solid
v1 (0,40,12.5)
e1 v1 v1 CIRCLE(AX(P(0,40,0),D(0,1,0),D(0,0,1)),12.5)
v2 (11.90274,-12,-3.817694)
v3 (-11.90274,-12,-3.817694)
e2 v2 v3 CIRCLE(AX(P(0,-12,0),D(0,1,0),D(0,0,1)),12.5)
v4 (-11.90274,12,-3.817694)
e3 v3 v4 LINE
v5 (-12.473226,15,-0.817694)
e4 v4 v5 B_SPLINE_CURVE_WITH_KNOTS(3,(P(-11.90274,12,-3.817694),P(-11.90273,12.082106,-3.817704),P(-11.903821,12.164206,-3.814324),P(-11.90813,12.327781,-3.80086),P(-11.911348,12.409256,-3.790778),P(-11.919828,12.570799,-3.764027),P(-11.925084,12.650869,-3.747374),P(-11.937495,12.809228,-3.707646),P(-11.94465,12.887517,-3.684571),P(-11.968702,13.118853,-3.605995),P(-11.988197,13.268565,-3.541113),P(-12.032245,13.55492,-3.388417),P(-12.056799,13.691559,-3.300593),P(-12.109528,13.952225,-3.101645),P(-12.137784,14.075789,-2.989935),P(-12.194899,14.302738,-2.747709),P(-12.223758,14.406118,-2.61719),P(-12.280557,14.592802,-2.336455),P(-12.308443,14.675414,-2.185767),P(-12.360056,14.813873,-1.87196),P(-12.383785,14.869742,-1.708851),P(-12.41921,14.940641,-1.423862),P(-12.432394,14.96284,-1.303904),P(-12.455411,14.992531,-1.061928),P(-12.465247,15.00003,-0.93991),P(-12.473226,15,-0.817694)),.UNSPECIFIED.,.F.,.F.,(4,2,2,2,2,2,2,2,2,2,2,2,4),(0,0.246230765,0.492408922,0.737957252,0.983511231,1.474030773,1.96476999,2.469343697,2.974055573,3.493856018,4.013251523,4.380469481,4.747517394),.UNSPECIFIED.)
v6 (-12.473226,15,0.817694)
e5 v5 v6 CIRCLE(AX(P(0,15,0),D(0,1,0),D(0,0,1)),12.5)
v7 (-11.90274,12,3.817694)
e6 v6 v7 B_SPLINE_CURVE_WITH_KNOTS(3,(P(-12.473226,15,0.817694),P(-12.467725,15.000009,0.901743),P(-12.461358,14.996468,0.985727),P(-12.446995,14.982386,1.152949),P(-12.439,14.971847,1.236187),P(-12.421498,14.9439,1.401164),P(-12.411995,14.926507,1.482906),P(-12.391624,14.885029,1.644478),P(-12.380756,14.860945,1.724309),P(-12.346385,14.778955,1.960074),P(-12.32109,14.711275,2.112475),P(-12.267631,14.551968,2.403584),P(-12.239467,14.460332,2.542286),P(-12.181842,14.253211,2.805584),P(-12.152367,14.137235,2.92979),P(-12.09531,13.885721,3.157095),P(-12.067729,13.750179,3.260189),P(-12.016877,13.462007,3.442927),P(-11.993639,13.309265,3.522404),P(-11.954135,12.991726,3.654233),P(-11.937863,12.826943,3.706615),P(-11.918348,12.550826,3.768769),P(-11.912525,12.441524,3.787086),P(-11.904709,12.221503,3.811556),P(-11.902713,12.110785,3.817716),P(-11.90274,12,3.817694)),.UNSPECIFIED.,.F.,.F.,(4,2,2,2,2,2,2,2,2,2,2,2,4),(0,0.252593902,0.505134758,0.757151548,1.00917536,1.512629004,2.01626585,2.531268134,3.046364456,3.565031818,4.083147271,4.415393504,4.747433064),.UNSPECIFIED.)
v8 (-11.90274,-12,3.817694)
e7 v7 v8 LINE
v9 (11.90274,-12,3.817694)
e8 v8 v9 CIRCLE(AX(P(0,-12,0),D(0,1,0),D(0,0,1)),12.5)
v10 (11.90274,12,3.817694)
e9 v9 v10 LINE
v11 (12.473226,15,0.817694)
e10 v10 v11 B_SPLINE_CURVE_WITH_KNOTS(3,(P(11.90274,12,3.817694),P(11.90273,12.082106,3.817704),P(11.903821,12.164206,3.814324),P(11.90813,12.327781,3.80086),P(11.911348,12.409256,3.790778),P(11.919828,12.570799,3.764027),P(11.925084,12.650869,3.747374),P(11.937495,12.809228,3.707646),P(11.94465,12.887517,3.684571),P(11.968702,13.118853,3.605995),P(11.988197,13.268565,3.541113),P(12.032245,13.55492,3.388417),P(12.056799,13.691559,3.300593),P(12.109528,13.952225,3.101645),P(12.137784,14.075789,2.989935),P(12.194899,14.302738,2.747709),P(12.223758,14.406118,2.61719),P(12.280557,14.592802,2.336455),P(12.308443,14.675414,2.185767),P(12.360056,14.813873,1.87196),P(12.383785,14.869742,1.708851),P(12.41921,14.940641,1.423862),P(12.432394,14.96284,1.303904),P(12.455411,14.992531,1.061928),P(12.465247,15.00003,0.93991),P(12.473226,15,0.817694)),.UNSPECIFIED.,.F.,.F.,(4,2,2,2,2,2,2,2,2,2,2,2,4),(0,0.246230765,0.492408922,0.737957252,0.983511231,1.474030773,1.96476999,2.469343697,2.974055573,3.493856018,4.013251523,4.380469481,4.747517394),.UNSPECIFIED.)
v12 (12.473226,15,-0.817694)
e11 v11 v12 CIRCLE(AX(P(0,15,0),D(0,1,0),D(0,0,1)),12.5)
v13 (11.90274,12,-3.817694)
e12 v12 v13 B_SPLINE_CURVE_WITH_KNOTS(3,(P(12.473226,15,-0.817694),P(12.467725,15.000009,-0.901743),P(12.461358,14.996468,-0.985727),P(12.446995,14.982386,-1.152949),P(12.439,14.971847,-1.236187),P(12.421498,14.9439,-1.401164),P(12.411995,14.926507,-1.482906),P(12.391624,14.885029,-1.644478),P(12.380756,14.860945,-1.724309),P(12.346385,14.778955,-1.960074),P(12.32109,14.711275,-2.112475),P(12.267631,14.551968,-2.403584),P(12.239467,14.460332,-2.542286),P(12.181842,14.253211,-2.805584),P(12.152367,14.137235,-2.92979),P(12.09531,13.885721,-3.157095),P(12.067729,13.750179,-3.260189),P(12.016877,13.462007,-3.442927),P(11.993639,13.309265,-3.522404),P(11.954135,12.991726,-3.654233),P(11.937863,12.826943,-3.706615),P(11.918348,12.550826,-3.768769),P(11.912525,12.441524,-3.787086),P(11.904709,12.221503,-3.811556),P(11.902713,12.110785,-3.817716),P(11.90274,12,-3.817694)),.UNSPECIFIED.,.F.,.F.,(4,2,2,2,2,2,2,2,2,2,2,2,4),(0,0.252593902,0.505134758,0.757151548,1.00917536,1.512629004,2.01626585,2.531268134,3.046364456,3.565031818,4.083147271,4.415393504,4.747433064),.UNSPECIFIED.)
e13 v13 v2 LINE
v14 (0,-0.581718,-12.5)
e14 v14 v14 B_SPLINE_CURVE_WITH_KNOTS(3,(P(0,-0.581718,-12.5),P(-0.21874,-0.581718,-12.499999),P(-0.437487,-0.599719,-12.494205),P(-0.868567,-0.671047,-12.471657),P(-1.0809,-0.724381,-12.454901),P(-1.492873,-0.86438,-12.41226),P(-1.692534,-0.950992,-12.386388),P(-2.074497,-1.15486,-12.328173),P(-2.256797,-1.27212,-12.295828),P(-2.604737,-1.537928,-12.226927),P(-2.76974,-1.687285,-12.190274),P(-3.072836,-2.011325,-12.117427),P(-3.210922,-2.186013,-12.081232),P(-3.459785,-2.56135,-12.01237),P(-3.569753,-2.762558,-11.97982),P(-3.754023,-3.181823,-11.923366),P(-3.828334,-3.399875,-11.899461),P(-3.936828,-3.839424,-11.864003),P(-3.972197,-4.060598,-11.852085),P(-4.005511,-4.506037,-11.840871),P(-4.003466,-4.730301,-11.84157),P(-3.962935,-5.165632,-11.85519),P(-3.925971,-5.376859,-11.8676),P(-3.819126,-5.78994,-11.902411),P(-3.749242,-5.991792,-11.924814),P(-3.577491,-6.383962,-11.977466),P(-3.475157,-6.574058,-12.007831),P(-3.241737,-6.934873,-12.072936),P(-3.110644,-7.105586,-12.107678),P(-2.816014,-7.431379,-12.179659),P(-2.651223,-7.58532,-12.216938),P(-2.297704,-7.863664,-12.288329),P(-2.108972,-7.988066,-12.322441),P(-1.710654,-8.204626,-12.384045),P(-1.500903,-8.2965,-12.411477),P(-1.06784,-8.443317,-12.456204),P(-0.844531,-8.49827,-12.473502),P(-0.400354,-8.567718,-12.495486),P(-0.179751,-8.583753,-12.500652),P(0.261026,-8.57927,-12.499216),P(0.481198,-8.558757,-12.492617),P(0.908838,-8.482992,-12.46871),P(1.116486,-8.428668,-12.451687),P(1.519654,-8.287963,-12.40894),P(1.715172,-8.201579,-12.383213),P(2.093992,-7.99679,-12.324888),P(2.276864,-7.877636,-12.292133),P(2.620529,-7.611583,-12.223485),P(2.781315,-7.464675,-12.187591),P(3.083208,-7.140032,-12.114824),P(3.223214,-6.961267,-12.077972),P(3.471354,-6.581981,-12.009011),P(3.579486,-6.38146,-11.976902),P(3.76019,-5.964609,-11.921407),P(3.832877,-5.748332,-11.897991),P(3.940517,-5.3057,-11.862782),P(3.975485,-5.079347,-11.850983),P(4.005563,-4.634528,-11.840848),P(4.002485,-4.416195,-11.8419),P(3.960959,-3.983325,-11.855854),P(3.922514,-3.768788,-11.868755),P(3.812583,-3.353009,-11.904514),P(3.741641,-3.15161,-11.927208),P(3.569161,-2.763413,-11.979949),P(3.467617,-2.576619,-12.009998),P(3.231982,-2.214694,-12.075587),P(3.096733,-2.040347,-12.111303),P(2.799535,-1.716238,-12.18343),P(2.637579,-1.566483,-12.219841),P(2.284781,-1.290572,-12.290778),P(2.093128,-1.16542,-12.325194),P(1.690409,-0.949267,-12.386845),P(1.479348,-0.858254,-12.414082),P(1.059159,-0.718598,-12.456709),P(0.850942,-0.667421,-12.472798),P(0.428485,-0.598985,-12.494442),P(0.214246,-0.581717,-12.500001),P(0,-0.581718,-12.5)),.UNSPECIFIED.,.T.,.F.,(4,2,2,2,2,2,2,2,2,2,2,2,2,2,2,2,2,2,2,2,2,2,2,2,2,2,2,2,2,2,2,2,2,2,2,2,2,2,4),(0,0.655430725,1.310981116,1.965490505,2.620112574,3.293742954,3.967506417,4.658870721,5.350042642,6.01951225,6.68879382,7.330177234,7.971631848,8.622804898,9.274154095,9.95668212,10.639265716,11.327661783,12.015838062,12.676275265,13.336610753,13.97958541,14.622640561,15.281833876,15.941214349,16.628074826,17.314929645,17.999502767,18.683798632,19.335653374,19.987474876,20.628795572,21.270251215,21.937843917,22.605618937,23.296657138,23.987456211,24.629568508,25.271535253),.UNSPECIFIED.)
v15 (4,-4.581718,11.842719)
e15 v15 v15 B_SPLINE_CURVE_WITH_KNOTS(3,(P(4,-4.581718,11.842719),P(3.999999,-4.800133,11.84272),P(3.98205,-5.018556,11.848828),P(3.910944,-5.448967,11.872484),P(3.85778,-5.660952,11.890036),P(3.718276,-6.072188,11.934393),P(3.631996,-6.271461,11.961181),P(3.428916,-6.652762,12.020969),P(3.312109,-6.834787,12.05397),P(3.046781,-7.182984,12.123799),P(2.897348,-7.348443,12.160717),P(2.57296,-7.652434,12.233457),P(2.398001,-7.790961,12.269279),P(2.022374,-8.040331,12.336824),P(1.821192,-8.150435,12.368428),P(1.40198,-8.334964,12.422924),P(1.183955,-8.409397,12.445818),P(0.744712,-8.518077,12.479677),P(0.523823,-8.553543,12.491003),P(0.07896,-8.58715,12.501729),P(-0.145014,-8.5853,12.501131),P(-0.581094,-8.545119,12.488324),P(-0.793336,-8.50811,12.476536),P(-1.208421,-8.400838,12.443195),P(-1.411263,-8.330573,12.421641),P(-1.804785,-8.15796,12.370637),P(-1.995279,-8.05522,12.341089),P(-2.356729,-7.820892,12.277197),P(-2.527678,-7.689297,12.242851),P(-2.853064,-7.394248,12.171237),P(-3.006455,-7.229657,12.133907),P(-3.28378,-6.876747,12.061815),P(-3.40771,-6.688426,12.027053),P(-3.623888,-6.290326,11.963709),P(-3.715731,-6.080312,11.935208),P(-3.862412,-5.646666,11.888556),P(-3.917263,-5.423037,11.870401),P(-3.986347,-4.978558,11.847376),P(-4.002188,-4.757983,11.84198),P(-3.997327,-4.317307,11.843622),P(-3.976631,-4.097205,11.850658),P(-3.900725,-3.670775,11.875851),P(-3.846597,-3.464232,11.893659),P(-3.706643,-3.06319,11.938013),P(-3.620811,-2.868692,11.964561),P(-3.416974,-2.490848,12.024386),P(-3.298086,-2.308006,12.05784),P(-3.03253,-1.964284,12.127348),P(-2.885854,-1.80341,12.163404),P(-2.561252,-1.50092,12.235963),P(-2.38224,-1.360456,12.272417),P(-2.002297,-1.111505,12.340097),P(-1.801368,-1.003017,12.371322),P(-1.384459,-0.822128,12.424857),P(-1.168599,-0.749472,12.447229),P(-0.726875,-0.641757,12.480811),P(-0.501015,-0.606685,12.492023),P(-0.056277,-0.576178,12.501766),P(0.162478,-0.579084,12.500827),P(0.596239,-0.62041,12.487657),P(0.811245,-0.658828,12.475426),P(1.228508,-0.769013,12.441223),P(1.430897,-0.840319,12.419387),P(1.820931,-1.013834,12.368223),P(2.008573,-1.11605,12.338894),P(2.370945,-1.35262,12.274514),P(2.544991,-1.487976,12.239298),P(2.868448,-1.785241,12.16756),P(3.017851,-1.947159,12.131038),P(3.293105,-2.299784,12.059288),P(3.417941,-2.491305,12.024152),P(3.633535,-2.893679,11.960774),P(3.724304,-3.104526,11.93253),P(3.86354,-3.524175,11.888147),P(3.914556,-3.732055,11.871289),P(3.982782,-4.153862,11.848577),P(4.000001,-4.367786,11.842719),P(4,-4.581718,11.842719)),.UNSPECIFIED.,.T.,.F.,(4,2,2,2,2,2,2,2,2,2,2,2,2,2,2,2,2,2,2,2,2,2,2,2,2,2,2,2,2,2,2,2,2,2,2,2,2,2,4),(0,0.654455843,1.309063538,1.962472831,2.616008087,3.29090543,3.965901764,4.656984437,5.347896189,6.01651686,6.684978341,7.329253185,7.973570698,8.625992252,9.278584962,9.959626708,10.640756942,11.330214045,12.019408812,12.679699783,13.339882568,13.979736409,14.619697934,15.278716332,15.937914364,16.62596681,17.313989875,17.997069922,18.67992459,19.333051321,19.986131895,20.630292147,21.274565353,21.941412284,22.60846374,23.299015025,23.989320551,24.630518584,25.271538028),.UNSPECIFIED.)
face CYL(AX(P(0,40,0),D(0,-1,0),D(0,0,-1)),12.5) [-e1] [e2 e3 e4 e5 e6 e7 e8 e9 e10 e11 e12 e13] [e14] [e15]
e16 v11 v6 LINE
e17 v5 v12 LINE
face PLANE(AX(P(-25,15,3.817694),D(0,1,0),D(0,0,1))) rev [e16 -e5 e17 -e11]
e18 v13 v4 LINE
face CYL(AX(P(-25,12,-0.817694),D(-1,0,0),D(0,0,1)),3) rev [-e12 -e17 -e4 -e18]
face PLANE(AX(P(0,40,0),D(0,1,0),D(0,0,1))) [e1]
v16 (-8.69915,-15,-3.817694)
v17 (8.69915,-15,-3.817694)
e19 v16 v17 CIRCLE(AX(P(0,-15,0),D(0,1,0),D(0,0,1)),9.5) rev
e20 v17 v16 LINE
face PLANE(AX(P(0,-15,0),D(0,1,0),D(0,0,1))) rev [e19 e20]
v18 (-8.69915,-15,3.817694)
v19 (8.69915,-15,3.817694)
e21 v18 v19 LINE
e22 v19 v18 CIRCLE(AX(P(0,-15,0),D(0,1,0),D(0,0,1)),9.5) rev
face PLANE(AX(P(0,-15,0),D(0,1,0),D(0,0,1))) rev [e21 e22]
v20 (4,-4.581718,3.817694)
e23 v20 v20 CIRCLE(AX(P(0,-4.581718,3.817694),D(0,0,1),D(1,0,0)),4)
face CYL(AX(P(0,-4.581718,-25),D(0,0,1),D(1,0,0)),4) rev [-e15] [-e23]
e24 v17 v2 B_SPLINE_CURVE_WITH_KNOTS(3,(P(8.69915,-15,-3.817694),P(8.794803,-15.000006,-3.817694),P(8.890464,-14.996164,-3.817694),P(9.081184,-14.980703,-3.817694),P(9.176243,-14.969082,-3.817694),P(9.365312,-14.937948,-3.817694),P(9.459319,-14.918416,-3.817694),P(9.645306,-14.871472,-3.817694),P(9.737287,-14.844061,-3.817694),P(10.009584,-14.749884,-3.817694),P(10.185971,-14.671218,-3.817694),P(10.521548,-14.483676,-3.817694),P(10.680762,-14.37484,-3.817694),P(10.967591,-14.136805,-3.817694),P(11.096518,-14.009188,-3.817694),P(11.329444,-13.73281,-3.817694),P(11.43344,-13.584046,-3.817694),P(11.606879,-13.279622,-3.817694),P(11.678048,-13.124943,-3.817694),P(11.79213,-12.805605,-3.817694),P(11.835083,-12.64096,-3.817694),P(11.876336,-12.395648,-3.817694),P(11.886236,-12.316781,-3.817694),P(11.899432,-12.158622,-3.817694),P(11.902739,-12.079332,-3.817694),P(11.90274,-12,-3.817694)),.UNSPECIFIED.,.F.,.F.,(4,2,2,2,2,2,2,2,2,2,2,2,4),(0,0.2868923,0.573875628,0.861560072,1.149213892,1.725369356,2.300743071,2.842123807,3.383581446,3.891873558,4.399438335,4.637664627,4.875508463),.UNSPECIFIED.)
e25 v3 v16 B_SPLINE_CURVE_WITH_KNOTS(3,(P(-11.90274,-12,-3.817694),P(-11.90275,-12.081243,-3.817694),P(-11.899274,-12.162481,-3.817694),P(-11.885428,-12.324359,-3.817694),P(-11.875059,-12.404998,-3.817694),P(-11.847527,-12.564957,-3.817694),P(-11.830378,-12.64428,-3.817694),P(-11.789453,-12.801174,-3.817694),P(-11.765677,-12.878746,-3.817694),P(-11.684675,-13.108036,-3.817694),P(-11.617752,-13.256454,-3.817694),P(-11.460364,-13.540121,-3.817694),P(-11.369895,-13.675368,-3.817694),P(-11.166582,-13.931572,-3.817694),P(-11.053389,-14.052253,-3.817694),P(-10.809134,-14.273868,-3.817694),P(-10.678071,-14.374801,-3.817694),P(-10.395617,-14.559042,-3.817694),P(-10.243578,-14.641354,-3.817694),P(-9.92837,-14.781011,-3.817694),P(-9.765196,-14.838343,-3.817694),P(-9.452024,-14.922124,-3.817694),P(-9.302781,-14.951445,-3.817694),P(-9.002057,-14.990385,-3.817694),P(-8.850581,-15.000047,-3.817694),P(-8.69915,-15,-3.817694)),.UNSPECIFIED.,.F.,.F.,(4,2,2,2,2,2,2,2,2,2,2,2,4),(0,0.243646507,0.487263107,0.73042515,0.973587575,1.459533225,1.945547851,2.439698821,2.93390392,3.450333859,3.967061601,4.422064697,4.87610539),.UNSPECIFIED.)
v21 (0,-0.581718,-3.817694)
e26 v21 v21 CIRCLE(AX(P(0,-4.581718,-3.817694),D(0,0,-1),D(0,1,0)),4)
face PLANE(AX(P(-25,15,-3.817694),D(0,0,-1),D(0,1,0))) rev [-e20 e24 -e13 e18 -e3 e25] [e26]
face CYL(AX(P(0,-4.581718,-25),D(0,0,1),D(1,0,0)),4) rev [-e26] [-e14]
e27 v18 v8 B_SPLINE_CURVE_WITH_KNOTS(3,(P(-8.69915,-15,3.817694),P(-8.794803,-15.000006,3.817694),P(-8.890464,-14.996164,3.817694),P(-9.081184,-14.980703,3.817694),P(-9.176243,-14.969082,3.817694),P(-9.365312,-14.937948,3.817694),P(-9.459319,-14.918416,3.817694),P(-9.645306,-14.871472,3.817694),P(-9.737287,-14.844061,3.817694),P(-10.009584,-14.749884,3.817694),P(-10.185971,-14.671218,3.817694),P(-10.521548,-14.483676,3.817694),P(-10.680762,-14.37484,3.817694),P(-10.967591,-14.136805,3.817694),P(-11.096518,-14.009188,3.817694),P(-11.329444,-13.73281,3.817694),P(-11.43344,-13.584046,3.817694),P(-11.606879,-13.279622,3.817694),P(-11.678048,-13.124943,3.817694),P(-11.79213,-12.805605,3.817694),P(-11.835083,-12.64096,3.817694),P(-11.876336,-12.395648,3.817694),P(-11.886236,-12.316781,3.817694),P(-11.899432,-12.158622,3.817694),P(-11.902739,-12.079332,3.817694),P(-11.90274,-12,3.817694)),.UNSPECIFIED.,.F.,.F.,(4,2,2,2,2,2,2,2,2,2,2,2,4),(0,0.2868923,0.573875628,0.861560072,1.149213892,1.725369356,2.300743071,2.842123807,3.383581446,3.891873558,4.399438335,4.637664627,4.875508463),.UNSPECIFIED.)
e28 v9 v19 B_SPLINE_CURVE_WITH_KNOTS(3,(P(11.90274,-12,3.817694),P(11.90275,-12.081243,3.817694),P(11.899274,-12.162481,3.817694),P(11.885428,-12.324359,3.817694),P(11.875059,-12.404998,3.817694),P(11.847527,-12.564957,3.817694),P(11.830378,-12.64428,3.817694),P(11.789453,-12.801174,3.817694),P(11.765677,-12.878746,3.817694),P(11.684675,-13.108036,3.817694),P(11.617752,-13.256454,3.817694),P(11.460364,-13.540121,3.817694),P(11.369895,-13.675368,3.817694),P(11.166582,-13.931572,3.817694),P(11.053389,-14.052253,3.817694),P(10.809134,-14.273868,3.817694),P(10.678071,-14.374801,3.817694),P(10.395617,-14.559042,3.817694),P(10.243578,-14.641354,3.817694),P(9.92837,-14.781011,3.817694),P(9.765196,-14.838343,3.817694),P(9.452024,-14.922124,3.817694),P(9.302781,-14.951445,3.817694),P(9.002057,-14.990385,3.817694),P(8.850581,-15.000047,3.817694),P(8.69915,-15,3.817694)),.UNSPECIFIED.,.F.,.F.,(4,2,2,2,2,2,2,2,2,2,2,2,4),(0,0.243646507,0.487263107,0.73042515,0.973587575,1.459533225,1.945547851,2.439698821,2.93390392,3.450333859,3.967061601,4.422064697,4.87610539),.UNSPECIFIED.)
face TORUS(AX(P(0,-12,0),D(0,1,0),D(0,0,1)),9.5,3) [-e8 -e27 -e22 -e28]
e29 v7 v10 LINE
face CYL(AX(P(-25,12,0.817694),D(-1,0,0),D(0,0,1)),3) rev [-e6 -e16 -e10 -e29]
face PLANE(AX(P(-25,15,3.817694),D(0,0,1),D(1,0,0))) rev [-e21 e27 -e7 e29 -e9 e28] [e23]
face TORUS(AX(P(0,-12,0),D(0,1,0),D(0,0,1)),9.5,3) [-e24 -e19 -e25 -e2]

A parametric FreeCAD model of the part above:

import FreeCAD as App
import Part
import Sketcher


def edges_at(feature, points):
    """Names of the edges that pass closest to the given points."""
    edges = feature.Shape.Edges
    near = lambda p: min(range(len(edges)), key=lambda i: edges[i].distToShape(Part.Vertex(*p))[0])
    return sorted({f"Edge{near(p) + 1}" for p in points})

doc = App.newDocument("Part")
body = doc.addObject("PartDesign::Body", "Body")

# Sketch on XZ plane
sketch1 = doc.addObject("Sketcher::SketchObject", "Sketch")
body.addObject(sketch1)
sketch1.AttachmentSupport = (doc.XZ_Plane, [""])
sketch1.MapMode = "FlatFace"
sketch1.AttachmentOffset = App.Placement(App.Vector(0, 0, 15), App.Rotation())
sketch1.addGeometry(Part.Circle(App.Vector(0, 0, 0), App.Vector(0, 0, 1), 12), False)
sketch1.addConstraint(Sketcher.Constraint("Coincident", 0, 3, -1, 1))
sketch1.addConstraint(Sketcher.Constraint("Diameter", 0, 25.0))
pad1 = doc.addObject("PartDesign::Pad", "Pad")
body.addObject(pad1)
pad1.Profile = sketch1
pad1.Length = 55
pad1.Reversed = True

# Sketch on YZ plane
sketch2 = doc.addObject("Sketcher::SketchObject", "Sketch001")
body.addObject(sketch2)
sketch2.AttachmentSupport = (doc.YZ_Plane, [""])
sketch2.MapMode = "FlatFace"
sketch2.addGeometry(Part.LineSegment(App.Vector(15, 4, 0), App.Vector(-15, 4, 0)), False)
sketch2.addGeometry(Part.LineSegment(App.Vector(-15, 4, 0), App.Vector(-15, -4, 0)), False)
sketch2.addGeometry(Part.LineSegment(App.Vector(-15, -4, 0), App.Vector(15, -4, 0)), False)
sketch2.addGeometry(Part.LineSegment(App.Vector(15, -4, 0), App.Vector(15, 4, 0)), False)
sketch2.addConstraint(Sketcher.Constraint("Coincident", 0, 2, 1, 1))
sketch2.addConstraint(Sketcher.Constraint("Coincident", 1, 2, 2, 1))
sketch2.addConstraint(Sketcher.Constraint("Coincident", 2, 2, 3, 1))
sketch2.addConstraint(Sketcher.Constraint("Coincident", 3, 2, 0, 1))
sketch2.addConstraint(Sketcher.Constraint("Horizontal", 0))
sketch2.addConstraint(Sketcher.Constraint("Vertical", 1))
sketch2.addConstraint(Sketcher.Constraint("Horizontal", 2))
sketch2.addConstraint(Sketcher.Constraint("Vertical", 3))
sketch2.addConstraint(Sketcher.Constraint("Symmetric", 0, 2, 2, 2, -1, 1))
sketch2.addConstraint(Sketcher.Constraint("DistanceX", 0, 2, 0, 1, 30.0))
sketch2.addConstraint(Sketcher.Constraint("DistanceY", 1, 2, 1, 1, 7.635388))
pocket1 = doc.addObject("PartDesign::Pocket", "Pocket")
body.addObject(pocket1)
pocket1.Profile = sketch2
pocket1.Length = 50
pocket1.Midplane = True
doc.recompute()

fillet = doc.addObject("PartDesign::Fillet", "Fillet")
body.addObject(fillet)
fillet.Base = (pocket1, edges_at(pocket1, [(0, -15, -12.5), (7.366, -15, 10.099)]))
fillet.Radius = 3

# Sketch on XY plane
sketch3 = doc.addObject("Sketcher::SketchObject", "Sketch002")
body.addObject(sketch3)
sketch3.AttachmentSupport = (doc.XY_Plane, [""])
sketch3.MapMode = "FlatFace"
sketch3.addGeometry(Part.Circle(App.Vector(0, -4.6, 0), App.Vector(0, 0, 1), 4), False)
sketch3.addConstraint(Sketcher.Constraint("PointOnObject", 0, 3, -2))
sketch3.addConstraint(Sketcher.Constraint("Diameter", 0, 8.0))
sketch3.addConstraint(Sketcher.Constraint("DistanceY", 0, 3, -1, 1, 4.581718))
pocket2 = doc.addObject("PartDesign::Pocket", "Pocket001")
body.addObject(pocket2)
pocket2.Profile = sketch3
pocket2.Length = 50
pocket2.Midplane = True
doc.recompute()

fillet2 = doc.addObject("PartDesign::Fillet", "Fillet001")
body.addObject(fillet2)
fillet2.Base = (pocket2, edges_at(pocket2, [(0, 15, -3.818), (0, 15, 3.818)]))
fillet2.Radius = 3

doc.recompute()
